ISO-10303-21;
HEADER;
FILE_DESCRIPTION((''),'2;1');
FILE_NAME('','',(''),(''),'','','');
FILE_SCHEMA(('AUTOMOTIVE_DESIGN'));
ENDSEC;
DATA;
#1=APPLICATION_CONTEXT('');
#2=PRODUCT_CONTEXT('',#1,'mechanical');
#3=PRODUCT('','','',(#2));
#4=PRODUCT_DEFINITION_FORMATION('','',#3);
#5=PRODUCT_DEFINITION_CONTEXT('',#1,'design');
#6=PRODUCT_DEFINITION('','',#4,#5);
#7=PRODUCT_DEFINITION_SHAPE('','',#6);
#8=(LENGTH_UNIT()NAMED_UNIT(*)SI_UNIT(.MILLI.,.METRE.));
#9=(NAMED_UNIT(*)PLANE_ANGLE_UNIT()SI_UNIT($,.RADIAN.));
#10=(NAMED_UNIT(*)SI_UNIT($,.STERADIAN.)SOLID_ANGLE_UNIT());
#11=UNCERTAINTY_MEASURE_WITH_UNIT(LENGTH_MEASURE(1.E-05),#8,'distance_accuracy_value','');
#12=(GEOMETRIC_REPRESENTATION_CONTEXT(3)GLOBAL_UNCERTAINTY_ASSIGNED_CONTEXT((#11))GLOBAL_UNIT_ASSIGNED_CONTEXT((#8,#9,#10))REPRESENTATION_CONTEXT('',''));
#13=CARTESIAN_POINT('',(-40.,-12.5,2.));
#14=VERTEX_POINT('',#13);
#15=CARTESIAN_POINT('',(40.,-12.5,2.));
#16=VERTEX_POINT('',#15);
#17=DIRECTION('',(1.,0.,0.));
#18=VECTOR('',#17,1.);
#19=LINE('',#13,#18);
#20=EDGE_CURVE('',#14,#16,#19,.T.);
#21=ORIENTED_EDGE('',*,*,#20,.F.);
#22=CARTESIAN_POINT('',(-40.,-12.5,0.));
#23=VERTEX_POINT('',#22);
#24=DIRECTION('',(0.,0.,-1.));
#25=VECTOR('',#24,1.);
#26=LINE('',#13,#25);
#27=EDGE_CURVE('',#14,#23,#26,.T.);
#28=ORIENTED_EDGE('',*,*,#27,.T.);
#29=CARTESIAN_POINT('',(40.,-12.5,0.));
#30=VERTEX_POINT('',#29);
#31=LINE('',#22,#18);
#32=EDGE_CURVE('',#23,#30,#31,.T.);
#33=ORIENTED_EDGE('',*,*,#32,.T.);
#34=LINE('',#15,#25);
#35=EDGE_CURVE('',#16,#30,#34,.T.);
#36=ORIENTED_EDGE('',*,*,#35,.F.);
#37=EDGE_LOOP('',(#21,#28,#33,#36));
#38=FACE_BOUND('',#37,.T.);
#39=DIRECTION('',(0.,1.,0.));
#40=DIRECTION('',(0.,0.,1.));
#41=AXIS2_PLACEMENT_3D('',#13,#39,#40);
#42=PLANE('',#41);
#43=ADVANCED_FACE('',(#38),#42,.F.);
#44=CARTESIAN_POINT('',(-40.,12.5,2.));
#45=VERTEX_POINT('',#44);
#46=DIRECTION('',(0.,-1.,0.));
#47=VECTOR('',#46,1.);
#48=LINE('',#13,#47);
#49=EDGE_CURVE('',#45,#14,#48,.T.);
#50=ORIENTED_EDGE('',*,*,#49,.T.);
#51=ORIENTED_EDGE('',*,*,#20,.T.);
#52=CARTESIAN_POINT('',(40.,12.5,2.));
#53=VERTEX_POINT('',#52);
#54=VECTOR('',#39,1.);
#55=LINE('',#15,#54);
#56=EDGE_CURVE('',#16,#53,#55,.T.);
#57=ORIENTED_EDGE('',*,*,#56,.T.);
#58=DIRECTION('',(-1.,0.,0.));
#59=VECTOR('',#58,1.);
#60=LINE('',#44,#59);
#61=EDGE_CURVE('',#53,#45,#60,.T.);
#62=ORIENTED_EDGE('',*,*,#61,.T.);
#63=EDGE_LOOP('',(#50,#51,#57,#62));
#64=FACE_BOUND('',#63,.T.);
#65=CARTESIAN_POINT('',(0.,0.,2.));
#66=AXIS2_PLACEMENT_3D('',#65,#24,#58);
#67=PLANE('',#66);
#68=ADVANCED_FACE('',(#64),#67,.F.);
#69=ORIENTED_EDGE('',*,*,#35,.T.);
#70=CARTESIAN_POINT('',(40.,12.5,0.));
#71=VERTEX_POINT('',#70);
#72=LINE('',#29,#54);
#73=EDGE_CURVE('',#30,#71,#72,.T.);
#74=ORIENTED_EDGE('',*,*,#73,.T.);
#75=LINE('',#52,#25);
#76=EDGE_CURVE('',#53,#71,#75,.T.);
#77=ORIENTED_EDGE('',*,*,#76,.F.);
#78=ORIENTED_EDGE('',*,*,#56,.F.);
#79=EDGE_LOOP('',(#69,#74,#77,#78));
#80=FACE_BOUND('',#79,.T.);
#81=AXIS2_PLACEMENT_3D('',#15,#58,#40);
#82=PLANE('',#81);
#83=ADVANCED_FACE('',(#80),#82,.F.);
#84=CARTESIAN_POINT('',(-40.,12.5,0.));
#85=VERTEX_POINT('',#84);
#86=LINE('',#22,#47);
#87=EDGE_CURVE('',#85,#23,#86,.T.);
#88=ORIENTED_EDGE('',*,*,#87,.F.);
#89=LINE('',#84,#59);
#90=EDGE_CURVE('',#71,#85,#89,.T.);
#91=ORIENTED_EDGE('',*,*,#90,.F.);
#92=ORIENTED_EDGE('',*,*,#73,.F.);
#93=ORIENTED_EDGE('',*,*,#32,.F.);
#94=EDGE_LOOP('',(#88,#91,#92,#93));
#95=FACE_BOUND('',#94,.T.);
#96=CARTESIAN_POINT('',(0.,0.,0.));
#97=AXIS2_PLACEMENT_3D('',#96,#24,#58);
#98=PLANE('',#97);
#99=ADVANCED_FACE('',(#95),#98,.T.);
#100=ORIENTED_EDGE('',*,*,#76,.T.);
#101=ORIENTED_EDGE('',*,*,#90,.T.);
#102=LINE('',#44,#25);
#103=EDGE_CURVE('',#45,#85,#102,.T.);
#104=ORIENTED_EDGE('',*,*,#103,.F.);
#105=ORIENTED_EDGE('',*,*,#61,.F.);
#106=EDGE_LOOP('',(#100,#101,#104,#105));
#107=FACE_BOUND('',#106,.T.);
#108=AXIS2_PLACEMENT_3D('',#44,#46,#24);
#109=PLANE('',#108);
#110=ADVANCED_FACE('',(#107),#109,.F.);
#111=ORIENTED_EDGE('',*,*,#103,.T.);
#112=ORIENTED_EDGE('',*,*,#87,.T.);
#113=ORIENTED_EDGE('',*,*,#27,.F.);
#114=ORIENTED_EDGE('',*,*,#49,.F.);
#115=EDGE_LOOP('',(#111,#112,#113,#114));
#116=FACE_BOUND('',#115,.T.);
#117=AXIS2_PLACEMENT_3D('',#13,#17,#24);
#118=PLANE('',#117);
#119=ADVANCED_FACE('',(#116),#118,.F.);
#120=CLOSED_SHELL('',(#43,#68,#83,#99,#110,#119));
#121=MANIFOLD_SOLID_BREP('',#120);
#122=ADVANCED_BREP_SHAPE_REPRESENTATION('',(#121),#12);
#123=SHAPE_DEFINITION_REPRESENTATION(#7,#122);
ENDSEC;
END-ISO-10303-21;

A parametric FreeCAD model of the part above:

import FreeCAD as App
import Part
import Sketcher

V = App.Vector


def add_polygon(sketch, points):
    """Adds a closed chain of lines whose ends are joined by coincident constraints."""
    first, n = sketch.GeometryCount, len(points)
    for a, b in zip(points, points[1:] + points[:1]):
        sketch.addGeometry(Part.LineSegment(App.Vector(*a, 0), App.Vector(*b, 0)), False)
    for i in range(n):
        sketch.addConstraint(Sketcher.Constraint("Coincident", first + i, 2, first + (i + 1) % n, 1))

doc = App.newDocument("Part")
body = doc.addObject("PartDesign::Body", "Body")

sketch1 = doc.addObject("Sketcher::SketchObject", "Sketch")
body.addObject(sketch1)
sketch1.AttachmentSupport = (doc.XY_Plane, [""])
sketch1.MapMode = "FlatFace"
add_polygon(sketch1, [(-40, 12), (-40, -12), (40, -12), (40, 12)])
sketch1.addConstraint([
    Sketcher.Constraint("Vertical", 0),
    Sketcher.Constraint("Horizontal", 1),
    Sketcher.Constraint("Vertical", 2),
    Sketcher.Constraint("Horizontal", 3),
    Sketcher.Constraint("Symmetric", 0, 2, 2, 2, -1, 1),
    Sketcher.Constraint("DistanceX", 1, 1, 1, 2, 80.0),
    Sketcher.Constraint("DistanceY", 0, 2, 0, 1, 25.0),
])
pad1 = doc.addObject("PartDesign::Pad", "Pad")
body.addObject(pad1)
pad1.Profile = sketch1
pad1.Length = 2

doc.recompute()
